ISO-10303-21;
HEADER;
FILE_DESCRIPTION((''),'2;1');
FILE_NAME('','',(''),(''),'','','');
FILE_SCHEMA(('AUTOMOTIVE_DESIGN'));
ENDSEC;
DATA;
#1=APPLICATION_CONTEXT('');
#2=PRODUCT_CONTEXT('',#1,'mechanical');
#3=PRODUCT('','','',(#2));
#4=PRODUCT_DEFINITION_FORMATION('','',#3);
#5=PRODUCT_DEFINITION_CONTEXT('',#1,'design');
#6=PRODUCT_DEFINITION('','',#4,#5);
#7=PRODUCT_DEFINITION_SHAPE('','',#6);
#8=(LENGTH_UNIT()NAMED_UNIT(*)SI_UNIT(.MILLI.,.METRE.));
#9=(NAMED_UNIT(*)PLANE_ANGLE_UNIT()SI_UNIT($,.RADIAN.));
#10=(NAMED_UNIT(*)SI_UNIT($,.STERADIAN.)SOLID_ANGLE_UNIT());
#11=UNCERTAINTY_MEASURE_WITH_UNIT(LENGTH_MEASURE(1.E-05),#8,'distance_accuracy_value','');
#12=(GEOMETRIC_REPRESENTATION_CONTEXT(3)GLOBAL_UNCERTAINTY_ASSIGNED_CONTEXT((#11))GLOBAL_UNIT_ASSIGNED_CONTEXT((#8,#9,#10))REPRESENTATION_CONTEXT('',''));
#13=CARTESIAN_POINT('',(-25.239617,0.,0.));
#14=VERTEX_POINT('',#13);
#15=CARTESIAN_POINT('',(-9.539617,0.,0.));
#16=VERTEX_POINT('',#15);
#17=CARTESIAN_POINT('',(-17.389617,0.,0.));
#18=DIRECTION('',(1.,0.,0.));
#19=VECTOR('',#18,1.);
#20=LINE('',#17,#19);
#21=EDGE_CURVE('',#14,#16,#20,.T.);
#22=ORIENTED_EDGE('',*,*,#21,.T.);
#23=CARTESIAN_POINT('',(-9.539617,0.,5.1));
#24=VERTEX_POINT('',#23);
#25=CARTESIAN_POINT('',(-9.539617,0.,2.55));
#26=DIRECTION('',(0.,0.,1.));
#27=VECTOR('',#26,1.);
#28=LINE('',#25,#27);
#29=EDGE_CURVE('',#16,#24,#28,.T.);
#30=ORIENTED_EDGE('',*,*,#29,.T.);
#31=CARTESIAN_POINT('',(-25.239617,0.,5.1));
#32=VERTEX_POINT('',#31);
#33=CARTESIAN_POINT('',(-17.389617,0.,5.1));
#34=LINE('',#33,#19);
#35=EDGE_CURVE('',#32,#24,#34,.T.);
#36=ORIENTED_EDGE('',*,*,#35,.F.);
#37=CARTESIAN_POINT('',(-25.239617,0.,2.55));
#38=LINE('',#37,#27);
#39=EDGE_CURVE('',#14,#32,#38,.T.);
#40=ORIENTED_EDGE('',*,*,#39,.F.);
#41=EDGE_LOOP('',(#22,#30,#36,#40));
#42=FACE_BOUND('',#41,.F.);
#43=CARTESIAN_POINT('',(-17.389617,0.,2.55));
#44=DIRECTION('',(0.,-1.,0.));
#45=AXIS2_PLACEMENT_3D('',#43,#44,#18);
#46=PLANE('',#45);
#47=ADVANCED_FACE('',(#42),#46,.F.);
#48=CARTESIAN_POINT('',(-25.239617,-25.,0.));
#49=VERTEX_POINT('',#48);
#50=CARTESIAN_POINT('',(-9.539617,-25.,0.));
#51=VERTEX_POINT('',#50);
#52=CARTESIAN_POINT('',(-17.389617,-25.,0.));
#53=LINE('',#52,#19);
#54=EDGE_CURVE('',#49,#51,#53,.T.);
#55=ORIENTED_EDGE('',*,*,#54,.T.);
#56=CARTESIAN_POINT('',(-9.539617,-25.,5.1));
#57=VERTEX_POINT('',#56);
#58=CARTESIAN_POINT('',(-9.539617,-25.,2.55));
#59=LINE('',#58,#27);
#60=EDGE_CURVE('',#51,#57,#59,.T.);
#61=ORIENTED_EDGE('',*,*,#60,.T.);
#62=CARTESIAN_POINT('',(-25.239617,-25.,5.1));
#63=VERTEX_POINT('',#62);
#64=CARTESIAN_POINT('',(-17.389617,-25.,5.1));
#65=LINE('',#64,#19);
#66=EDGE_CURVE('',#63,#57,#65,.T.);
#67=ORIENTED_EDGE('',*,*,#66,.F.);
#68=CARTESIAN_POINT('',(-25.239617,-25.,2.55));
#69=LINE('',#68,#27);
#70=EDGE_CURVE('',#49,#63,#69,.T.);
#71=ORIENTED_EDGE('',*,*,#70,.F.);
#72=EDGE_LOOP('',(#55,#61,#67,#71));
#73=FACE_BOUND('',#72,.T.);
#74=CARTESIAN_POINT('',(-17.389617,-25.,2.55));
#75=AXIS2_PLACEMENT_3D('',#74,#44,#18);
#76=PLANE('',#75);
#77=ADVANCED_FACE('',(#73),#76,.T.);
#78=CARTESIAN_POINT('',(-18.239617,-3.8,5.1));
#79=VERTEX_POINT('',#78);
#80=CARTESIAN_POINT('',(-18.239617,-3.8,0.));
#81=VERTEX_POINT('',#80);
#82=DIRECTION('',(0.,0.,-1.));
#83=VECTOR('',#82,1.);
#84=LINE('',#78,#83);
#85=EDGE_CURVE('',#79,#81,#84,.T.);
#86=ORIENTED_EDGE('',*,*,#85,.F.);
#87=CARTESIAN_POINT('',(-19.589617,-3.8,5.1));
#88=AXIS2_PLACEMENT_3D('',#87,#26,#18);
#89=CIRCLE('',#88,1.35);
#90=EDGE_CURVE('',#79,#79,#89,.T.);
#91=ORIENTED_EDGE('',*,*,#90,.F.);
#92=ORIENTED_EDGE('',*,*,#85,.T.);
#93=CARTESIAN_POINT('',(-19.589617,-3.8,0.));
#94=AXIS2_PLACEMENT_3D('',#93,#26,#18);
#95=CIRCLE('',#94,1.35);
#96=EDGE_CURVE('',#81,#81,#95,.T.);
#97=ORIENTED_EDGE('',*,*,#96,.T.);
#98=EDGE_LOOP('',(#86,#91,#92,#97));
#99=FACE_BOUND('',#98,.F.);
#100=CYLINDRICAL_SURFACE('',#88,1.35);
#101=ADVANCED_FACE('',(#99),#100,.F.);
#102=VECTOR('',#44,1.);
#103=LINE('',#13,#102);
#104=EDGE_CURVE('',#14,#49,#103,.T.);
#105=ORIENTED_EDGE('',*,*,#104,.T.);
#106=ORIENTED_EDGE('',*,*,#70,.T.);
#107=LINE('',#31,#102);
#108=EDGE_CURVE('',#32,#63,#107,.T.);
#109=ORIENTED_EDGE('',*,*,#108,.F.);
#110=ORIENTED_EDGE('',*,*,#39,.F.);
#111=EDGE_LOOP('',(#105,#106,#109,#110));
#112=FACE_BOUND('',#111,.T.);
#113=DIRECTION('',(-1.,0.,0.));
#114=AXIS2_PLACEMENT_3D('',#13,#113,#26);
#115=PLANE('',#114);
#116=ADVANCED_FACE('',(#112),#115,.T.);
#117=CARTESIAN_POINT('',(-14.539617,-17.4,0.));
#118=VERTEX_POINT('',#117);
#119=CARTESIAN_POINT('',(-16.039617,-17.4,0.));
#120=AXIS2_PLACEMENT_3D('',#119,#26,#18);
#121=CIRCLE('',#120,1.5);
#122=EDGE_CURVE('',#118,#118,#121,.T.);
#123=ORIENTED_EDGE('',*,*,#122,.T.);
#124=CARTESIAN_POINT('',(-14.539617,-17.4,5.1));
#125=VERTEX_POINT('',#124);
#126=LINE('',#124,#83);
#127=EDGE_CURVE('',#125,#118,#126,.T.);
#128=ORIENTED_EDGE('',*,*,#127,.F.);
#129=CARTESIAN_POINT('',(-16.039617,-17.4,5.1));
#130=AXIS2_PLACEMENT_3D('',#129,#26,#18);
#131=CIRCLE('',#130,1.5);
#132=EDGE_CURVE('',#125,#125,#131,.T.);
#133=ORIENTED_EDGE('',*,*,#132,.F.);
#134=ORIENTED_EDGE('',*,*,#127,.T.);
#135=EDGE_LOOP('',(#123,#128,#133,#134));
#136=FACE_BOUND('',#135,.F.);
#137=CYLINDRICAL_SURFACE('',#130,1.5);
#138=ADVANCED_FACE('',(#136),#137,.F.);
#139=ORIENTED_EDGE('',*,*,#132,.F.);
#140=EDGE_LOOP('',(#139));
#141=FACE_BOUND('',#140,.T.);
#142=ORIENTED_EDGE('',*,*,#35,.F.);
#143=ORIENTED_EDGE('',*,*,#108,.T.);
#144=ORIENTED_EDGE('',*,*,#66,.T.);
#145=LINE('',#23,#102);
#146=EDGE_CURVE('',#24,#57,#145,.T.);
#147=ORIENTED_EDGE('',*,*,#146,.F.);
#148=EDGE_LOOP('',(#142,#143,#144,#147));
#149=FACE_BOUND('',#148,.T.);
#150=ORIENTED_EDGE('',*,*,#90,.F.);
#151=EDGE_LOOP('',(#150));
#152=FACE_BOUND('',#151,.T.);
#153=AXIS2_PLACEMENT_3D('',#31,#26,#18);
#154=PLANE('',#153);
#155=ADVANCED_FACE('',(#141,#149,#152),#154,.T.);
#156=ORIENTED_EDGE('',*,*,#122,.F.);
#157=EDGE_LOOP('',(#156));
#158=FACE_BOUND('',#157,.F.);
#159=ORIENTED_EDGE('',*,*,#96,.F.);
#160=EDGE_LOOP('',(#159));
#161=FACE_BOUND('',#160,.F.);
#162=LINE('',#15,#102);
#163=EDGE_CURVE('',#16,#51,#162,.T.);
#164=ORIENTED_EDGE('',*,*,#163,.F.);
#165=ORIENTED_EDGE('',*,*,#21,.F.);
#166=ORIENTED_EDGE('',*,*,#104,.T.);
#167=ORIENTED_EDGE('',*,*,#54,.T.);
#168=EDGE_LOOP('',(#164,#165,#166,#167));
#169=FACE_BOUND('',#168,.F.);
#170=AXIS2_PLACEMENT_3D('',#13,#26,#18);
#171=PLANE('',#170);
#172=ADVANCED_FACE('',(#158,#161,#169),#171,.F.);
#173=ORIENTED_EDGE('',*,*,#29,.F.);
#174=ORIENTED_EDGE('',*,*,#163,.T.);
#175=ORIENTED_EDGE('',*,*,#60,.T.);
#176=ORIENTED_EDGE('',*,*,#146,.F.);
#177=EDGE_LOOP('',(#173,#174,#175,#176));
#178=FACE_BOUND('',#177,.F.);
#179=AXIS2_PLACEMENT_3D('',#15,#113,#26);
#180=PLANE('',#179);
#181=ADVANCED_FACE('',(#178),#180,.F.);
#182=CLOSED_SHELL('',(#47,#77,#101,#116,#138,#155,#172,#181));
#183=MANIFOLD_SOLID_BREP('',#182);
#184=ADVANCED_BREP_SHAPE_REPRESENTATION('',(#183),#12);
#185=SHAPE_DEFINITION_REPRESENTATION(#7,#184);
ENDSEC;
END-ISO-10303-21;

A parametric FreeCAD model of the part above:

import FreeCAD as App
import Part
import Sketcher

doc = App.newDocument("Part")
body = doc.addObject("PartDesign::Body", "Body")

sketch1 = doc.addObject("Sketcher::SketchObject", "Sketch")
body.addObject(sketch1)
sketch1.AttachmentSupport = (doc.XZ_Plane, [""])
sketch1.MapMode = "FlatFace"
sketch1.addGeometry([
    Part.LineSegment(App.Vector(-25.239617, 5.1, 0), App.Vector(-25.239617, 0, 0)),
    Part.LineSegment(App.Vector(-25.239617, 0, 0), App.Vector(-9.539617, 0, 0)),
    Part.LineSegment(App.Vector(-9.539617, 0, 0), App.Vector(-9.539617, 5.1, 0)),
    Part.LineSegment(App.Vector(-9.539617, 5.1, 0), App.Vector(-25.239617, 5.1, 0)),
], False)
sketch1.addConstraint([
    Sketcher.Constraint("Coincident", 0, 2, 1, 1),
    Sketcher.Constraint("Coincident", 1, 2, 2, 1),
    Sketcher.Constraint("Coincident", 2, 2, 3, 1),
    Sketcher.Constraint("Coincident", 3, 2, 0, 1),
    Sketcher.Constraint("Vertical", 0),
    Sketcher.Constraint("Horizontal", 1),
    Sketcher.Constraint("Vertical", 2),
    Sketcher.Constraint("Horizontal", 3),
    Sketcher.Constraint("PointOnObject", 0, 2, -1),
    Sketcher.Constraint("DistanceX", 1, 1, 1, 2, 15.7),
    Sketcher.Constraint("DistanceY", 0, 2, 0, 1, 5.1),
    Sketcher.Constraint("DistanceX", 0, 2, -1, 1, 25.239617),
])
pad1 = doc.addObject("PartDesign::Pad", "Pad")
body.addObject(pad1)
pad1.Profile = sketch1
pad1.Length = 25

sketch2 = doc.addObject("Sketcher::SketchObject", "Sketch001")
body.addObject(sketch2)
sketch2.AttachmentSupport = (doc.XY_Plane, [""])
sketch2.MapMode = "FlatFace"
sketch2.AttachmentOffset = App.Placement(App.Vector(0, 0, 5.1), App.Rotation())
sketch2.addGeometry(Part.Circle(App.Vector(-19.589617, -3.8, 0), App.Vector(0, 0, 1), 1.35), False)
sketch2.addConstraint([
    Sketcher.Constraint("Diameter", 0, 2.7),
    Sketcher.Constraint("DistanceY", 0, 3, -1, 1, 3.8),
    Sketcher.Constraint("DistanceX", 0, 3, -1, 1, 19.589617),
])
pocket1 = doc.addObject("PartDesign::Pocket", "Pocket")
body.addObject(pocket1)
pocket1.Profile = sketch2
pocket1.Length = 5.1

sketch3 = doc.addObject("Sketcher::SketchObject", "Sketch002")
body.addObject(sketch3)
sketch3.AttachmentSupport = (doc.XY_Plane, [""])
sketch3.MapMode = "FlatFace"
sketch3.AttachmentOffset = App.Placement(App.Vector(0, 0, 5.1), App.Rotation())
sketch3.addGeometry(Part.Circle(App.Vector(-16.039617, -17.4, 0), App.Vector(0, 0, 1), 1.5), False)
sketch3.addConstraint([
    Sketcher.Constraint("Diameter", 0, 3.0),
    Sketcher.Constraint("DistanceY", 0, 3, -1, 1, 17.4),
    Sketcher.Constraint("DistanceX", 0, 3, -1, 1, 16.039617),
])
pocket2 = doc.addObject("PartDesign::Pocket", "Pocket001")
body.addObject(pocket2)
pocket2.Profile = sketch3
pocket2.Length = 5.1

doc.recompute()
